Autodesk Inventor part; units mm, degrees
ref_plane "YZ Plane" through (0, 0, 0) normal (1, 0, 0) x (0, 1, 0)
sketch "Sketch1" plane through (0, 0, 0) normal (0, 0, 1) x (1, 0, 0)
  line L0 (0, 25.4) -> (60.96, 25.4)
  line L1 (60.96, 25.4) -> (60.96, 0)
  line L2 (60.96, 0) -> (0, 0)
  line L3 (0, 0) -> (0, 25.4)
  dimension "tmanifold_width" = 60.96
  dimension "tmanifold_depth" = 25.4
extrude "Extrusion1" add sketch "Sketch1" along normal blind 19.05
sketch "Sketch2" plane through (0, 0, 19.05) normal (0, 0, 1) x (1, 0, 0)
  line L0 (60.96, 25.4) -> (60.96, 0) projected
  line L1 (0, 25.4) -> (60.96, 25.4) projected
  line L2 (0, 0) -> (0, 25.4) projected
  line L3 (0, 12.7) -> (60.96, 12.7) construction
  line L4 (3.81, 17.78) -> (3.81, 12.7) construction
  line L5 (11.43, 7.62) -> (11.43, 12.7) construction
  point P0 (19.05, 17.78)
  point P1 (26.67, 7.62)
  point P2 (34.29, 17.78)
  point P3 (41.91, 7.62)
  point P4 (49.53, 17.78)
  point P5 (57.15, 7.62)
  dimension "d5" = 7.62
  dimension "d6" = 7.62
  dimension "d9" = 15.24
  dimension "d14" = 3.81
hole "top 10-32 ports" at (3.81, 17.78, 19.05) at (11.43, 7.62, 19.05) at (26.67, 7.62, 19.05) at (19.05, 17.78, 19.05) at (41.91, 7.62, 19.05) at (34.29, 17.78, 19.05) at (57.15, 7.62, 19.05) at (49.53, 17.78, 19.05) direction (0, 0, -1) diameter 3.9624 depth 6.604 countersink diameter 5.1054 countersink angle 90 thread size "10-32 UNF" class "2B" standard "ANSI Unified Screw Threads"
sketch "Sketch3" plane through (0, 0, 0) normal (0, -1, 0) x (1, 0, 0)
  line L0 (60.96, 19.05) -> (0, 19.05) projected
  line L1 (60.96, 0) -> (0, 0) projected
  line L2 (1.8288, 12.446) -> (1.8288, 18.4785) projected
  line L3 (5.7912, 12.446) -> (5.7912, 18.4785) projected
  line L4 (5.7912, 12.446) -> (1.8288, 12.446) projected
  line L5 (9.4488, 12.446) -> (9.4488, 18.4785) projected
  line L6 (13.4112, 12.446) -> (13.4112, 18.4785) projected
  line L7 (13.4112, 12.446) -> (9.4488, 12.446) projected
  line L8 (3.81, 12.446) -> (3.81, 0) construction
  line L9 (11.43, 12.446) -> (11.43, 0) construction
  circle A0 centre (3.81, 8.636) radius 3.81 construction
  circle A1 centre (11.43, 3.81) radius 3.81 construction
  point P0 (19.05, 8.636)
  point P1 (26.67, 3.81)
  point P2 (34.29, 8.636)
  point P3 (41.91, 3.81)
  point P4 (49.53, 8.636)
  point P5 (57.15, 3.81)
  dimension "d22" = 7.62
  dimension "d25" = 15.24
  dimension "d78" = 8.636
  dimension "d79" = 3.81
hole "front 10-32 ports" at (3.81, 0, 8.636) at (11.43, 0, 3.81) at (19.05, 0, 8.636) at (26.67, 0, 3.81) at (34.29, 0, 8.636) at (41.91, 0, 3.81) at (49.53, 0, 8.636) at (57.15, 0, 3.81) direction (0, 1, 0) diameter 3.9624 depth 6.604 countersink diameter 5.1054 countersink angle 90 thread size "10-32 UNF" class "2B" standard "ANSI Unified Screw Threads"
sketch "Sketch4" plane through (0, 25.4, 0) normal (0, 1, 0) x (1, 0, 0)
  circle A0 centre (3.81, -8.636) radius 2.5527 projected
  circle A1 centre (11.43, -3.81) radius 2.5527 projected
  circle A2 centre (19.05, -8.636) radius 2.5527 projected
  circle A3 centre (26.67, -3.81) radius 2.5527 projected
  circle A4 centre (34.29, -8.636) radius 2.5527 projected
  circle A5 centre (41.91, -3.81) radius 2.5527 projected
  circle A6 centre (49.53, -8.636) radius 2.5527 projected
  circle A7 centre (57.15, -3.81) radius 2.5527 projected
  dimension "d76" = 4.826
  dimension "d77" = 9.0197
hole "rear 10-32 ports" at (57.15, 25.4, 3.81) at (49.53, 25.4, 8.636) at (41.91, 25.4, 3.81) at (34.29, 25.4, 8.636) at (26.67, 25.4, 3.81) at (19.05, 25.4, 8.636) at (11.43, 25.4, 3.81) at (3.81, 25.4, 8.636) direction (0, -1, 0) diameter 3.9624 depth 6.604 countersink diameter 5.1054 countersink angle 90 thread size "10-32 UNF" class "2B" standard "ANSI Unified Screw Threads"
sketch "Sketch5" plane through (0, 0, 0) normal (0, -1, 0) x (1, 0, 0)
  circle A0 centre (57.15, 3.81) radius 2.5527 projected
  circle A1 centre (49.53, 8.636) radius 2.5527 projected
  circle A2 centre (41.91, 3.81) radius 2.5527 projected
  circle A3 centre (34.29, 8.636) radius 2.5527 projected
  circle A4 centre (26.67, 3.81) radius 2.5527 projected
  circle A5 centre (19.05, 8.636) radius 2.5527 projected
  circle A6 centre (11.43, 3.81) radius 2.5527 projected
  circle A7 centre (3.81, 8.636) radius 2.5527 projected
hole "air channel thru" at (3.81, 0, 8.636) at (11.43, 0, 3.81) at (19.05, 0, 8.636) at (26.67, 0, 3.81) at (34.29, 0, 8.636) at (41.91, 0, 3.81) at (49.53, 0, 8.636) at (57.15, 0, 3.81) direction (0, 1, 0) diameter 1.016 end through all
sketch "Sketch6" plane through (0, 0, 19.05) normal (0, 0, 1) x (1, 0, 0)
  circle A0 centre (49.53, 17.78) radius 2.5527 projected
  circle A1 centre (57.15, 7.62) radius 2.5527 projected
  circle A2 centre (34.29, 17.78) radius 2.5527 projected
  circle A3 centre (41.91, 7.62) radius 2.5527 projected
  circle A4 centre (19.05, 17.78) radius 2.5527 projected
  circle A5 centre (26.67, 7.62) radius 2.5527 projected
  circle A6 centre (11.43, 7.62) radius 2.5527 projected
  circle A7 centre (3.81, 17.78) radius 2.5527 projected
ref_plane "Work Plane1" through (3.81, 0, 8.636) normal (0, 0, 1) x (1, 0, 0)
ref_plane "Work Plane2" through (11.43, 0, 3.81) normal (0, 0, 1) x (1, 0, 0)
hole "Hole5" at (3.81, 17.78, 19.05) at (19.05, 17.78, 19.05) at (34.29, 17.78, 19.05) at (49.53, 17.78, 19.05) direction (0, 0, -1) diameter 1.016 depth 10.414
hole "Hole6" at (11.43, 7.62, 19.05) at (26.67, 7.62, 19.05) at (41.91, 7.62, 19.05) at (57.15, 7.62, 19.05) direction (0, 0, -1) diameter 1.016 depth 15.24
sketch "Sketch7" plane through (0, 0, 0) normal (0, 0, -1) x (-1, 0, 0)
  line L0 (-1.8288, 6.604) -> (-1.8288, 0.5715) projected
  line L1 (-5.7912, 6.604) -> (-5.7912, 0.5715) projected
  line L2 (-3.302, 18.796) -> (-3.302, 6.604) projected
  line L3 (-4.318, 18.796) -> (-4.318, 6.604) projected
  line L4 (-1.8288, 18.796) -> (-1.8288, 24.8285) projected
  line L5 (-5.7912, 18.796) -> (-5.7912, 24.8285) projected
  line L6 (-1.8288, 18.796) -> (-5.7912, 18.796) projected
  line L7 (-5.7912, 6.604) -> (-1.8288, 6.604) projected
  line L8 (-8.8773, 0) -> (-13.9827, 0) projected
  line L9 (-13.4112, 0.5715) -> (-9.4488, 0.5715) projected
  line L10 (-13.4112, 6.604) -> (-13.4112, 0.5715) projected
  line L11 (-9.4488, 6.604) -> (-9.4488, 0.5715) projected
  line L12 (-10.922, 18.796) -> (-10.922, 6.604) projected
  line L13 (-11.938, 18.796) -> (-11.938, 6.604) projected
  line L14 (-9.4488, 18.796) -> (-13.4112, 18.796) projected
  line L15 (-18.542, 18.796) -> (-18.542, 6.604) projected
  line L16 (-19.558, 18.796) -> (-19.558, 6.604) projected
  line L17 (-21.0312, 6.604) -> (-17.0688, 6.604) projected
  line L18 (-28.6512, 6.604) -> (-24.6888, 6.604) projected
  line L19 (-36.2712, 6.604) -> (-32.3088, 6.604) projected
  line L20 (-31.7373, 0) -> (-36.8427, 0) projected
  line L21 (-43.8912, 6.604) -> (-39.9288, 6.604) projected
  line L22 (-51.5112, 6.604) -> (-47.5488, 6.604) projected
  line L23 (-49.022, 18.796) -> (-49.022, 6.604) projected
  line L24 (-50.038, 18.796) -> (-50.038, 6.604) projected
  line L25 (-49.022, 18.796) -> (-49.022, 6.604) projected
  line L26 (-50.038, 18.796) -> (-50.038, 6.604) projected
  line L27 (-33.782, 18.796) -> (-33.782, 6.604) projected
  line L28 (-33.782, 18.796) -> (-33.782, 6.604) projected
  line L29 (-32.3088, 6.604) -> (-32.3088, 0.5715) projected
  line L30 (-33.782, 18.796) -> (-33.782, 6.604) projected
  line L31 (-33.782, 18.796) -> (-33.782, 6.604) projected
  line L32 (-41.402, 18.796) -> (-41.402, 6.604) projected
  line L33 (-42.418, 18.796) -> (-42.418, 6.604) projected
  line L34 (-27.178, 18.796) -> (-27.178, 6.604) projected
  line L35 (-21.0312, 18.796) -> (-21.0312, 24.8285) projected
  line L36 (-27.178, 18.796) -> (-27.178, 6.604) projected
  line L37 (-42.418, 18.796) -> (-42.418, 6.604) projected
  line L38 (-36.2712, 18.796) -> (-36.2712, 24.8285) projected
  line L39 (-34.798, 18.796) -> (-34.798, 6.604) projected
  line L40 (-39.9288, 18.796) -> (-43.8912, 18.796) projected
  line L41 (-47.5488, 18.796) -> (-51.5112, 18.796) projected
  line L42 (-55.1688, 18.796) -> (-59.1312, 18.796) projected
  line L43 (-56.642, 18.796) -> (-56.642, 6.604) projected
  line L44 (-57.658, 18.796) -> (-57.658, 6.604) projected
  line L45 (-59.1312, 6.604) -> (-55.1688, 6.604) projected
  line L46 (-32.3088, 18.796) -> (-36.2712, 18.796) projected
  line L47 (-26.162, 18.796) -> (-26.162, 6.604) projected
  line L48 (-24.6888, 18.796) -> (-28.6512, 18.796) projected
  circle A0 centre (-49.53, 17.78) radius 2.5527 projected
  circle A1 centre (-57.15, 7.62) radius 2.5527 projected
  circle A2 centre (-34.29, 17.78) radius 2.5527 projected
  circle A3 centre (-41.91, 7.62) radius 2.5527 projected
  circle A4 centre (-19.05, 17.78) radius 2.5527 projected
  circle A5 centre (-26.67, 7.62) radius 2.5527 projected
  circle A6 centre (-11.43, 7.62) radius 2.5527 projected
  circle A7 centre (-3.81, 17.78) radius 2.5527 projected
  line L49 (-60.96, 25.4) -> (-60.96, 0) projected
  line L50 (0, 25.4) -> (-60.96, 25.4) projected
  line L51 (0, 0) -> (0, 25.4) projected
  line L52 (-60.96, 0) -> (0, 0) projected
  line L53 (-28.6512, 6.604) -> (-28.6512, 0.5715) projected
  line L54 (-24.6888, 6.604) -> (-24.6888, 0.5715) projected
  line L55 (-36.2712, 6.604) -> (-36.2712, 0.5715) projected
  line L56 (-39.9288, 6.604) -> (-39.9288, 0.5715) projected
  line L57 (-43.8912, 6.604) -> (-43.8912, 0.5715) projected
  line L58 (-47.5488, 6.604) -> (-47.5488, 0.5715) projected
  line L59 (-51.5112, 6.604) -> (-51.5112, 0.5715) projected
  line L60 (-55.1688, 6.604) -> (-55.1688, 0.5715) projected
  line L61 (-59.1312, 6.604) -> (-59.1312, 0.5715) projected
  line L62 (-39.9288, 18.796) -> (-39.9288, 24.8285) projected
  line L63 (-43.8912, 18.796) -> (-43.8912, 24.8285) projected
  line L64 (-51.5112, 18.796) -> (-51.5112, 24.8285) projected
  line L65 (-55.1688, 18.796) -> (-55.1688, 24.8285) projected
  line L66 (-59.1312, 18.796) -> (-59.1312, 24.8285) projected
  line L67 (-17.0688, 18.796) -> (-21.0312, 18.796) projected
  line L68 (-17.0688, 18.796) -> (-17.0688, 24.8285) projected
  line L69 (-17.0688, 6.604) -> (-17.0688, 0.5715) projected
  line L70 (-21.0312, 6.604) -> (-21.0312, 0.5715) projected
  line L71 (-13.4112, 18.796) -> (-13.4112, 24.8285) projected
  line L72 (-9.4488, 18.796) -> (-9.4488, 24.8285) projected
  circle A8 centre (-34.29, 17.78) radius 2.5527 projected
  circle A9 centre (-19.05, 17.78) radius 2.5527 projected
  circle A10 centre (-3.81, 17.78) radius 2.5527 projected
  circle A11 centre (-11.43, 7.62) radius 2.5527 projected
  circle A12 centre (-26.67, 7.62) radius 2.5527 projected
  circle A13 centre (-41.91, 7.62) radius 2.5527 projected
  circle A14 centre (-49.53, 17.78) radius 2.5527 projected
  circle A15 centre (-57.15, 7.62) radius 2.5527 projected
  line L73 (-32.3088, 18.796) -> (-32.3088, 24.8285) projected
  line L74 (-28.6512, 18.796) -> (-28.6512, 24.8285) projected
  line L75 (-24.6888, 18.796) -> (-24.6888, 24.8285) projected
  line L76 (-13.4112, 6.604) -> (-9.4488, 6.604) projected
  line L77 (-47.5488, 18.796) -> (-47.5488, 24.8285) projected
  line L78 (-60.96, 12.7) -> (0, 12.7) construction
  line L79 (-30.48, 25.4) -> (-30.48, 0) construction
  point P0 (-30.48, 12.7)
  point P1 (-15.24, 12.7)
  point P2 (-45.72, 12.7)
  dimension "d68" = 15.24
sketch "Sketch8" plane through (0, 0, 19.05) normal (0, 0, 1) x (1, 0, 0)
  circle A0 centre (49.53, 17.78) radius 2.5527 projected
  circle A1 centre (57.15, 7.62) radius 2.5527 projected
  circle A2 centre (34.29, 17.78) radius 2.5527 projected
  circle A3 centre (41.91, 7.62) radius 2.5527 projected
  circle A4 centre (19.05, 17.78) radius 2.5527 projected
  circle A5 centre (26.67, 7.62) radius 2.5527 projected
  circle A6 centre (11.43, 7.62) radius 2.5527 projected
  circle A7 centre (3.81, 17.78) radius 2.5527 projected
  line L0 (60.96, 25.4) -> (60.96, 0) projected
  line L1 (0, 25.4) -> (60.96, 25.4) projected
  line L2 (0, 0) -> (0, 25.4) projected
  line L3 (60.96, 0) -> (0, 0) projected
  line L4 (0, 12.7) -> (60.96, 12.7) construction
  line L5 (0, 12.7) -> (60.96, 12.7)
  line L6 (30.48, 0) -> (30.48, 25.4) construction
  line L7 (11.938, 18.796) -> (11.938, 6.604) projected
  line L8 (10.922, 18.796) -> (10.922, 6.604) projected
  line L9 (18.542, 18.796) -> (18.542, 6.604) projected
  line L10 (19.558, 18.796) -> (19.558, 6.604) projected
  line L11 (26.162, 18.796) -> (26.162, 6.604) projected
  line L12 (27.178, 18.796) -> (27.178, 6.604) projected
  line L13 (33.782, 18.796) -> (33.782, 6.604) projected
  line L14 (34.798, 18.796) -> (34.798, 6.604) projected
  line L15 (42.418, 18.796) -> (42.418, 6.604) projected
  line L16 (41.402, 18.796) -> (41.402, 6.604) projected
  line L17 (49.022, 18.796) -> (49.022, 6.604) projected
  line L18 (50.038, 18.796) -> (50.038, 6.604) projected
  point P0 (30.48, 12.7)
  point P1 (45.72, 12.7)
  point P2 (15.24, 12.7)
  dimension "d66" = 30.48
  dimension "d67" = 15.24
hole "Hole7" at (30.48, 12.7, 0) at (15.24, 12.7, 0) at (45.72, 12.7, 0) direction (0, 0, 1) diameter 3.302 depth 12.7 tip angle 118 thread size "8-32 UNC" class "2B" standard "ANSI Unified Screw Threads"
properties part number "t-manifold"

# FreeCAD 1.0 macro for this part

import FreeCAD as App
import Part
import Sketcher
Q = App.Units.Quantity

doc = App.newDocument("Part")
params = doc.addObject("Spreadsheet::Sheet", "Params")
for row, (alias, value) in enumerate([
    ("sketch1_height", "1 in"),
    ("sketch1_width", "2.4 in"),
    ("pad1_length", "0.75 in"),
    ("sketch2_diameter", "0.156 in"),
    ("hole_diameter", "0.156 in"),
    ("hole_depth", "0.26 in"),
    ("hole_csink_diameter", "0.201 in"),
    ("sketch3_diameter", "0.156 in"),
    ("hole2_diameter", "0.156 in"),
    ("hole2_depth", "0.26 in"),
    ("hole2_csink_diameter", "0.201 in"),
    ("sketch4_diameter", "0.156 in"),
    ("hole3_diameter", "0.156 in"),
    ("hole3_depth", "0.26 in"),
    ("hole3_csink_diameter", "0.201 in"),
    ("sketch5_diameter", "0.04 in"),
    ("hole4_diameter", "0.04 in"),
    ("sketch6_diameter", "0.04 in"),
    ("hole5_diameter", "0.04 in"),
    ("hole5_depth", "0.41 in"),
    ("sketch7_diameter", "0.04 in"),
    ("hole6_diameter", "0.04 in"),
    ("hole6_depth", "0.6 in"),
    ("sketch8_diameter", "0.13 in"),
    ("hole7_diameter", "0.13 in"),
    ("hole7_depth", "0.5 in"),
], start=1):
    params.set(f"A{row}", alias)
    params.set(f"B{row}", "=" + value)
    params.setAlias(f"B{row}", alias)

body = doc.addObject("PartDesign::Body", "Body")

# Sketch on XY plane
sketch1 = body.newObject("Sketcher::SketchObject", "Sketch")
sketch1.AttachmentSupport = (doc.getObject("XY_Plane"), [""])
sketch1.MapMode = "FlatFace"
sketch1.addGeometry(Part.LineSegment(App.Vector(61, 25, 0), App.Vector(0, 25, 0)), False)
sketch1.addGeometry(Part.LineSegment(App.Vector(0, 25, 0), App.Vector(0, 0, 0)), False)
sketch1.addGeometry(Part.LineSegment(App.Vector(0, 0, 0), App.Vector(61, 0, 0)), False)
sketch1.addGeometry(Part.LineSegment(App.Vector(61, 0, 0), App.Vector(61, 25, 0)), False)
sketch1.addConstraint(Sketcher.Constraint("Coincident", 0, 2, 1, 1))
sketch1.addConstraint(Sketcher.Constraint("Coincident", 1, 2, 2, 1))
sketch1.addConstraint(Sketcher.Constraint("Coincident", 2, 2, 3, 1))
sketch1.addConstraint(Sketcher.Constraint("Coincident", 3, 2, 0, 1))
sketch1.addConstraint(Sketcher.Constraint("Horizontal", 0))
sketch1.addConstraint(Sketcher.Constraint("Vertical", 1))
sketch1.addConstraint(Sketcher.Constraint("Horizontal", 2))
sketch1.addConstraint(Sketcher.Constraint("Vertical", 3))
sketch1.addConstraint(Sketcher.Constraint("Coincident", 1, 2, -1, 1))
sketch1.addConstraint(Sketcher.Constraint("DistanceY", 1, 2, 1, 1, Q("1 in")))
sketch1.addConstraint(Sketcher.Constraint("DistanceX", 0, 2, 0, 1, Q("2.4 in")))
sketch1.setExpression("Constraints[9]", "Params.sketch1_height")
sketch1.setExpression("Constraints[10]", "Params.sketch1_width")
pad1 = body.newObject("PartDesign::Pad", "Pad")
pad1.Profile = sketch1
pad1.setExpression("Length", "Params.pad1_length")

# Sketch on XY plane
sketch2 = body.newObject("Sketcher::SketchObject", "Sketch001")
sketch2.AttachmentSupport = (doc.getObject("XY_Plane"), [""])
sketch2.MapMode = "FlatFace"
sketch2.AttachmentOffset = App.Placement(App.Vector(0, 0, 0.75 * 25.4), App.Rotation())
sketch2.addGeometry(Part.Circle(App.Vector(3.8, 17.8, 0), App.Vector(0, 0, 1), 2), False)
sketch2.addGeometry(Part.Circle(App.Vector(11.4, 7.6, 0), App.Vector(0, 0, 1), 2), False)
sketch2.addGeometry(Part.Circle(App.Vector(26.7, 7.6, 0), App.Vector(0, 0, 1), 2), False)
sketch2.addGeometry(Part.Circle(App.Vector(19.1, 17.8, 0), App.Vector(0, 0, 1), 2), False)
sketch2.addGeometry(Part.Circle(App.Vector(41.9, 7.6, 0), App.Vector(0, 0, 1), 2), False)
sketch2.addGeometry(Part.Circle(App.Vector(34.3, 17.8, 0), App.Vector(0, 0, 1), 2), False)
sketch2.addGeometry(Part.Circle(App.Vector(57.1, 7.6, 0), App.Vector(0, 0, 1), 2), False)
sketch2.addGeometry(Part.Circle(App.Vector(49.5, 17.8, 0), App.Vector(0, 0, 1), 2), False)
sketch2.addConstraint(Sketcher.Constraint("Equal", 0, 1))
sketch2.addConstraint(Sketcher.Constraint("Equal", 1, 2))
sketch2.addConstraint(Sketcher.Constraint("Equal", 2, 3))
sketch2.addConstraint(Sketcher.Constraint("Equal", 3, 4))
sketch2.addConstraint(Sketcher.Constraint("Equal", 4, 5))
sketch2.addConstraint(Sketcher.Constraint("Equal", 5, 6))
sketch2.addConstraint(Sketcher.Constraint("Equal", 6, 7))
sketch2.addConstraint(Sketcher.Constraint("Horizontal", 1, 3, 2, 3))
sketch2.addConstraint(Sketcher.Constraint("Horizontal", 0, 3, 3, 3))
sketch2.addConstraint(Sketcher.Constraint("Horizontal", 2, 3, 4, 3))
sketch2.addConstraint(Sketcher.Constraint("Horizontal", 3, 3, 5, 3))
sketch2.addConstraint(Sketcher.Constraint("Horizontal", 4, 3, 6, 3))
sketch2.addConstraint(Sketcher.Constraint("Horizontal", 5, 3, 7, 3))
sketch2.addConstraint(Sketcher.Constraint("Diameter", 0, Q("0.156 in")))
sketch2.addConstraint(Sketcher.Constraint("DistanceY", -1, 1, 0, 3, Q("0.7 in")))
sketch2.addConstraint(Sketcher.Constraint("DistanceY", -1, 1, 1, 3, Q("0.3 in")))
sketch2.addConstraint(Sketcher.Constraint("DistanceX", 0, 3, 1, 3, Q("0.3 in")))
sketch2.addConstraint(Sketcher.Constraint("DistanceX", 1, 3, 2, 3, Q("0.6 in")))
sketch2.addConstraint(Sketcher.Constraint("DistanceX", 1, 3, 3, 3, Q("0.3 in")))
sketch2.addConstraint(Sketcher.Constraint("DistanceX", 2, 3, 4, 3, Q("0.6 in")))
sketch2.addConstraint(Sketcher.Constraint("DistanceX", 2, 3, 5, 3, Q("0.3 in")))
sketch2.addConstraint(Sketcher.Constraint("DistanceX", 4, 3, 6, 3, Q("0.6 in")))
sketch2.addConstraint(Sketcher.Constraint("DistanceX", 7, 3, 6, 3, Q("0.3 in")))
sketch2.addConstraint(Sketcher.Constraint("DistanceX", -1, 1, 0, 3, Q("0.15 in")))
sketch2.setExpression("Constraints[13]", "Params.sketch2_diameter")
doc.recompute()
hole = body.newObject("PartDesign::Hole", "Hole")
hole.Profile = sketch2
hole.ThreadType = "None"
hole.setExpression("Diameter", "Params.hole_diameter")
hole.DepthType = "Dimension"
hole.setExpression("Depth", "Params.hole_depth")
hole.DrillPoint = "Flat"
hole.HoleCutType = "Countersink"
hole.setExpression("HoleCutDiameter", "Params.hole_csink_diameter")
hole.HoleCutCountersinkAngle = 90

# Sketch on XZ plane
sketch3 = body.newObject("Sketcher::SketchObject", "Sketch002")
sketch3.AttachmentSupport = (doc.getObject("XZ_Plane"), [""])
sketch3.MapMode = "FlatFace"
sketch3.addGeometry(Part.Circle(App.Vector(3.8, 8.6, 0), App.Vector(0, 0, 1), 2), False)
sketch3.addGeometry(Part.Circle(App.Vector(11.4, 3.8, 0), App.Vector(0, 0, 1), 2), False)
sketch3.addGeometry(Part.Circle(App.Vector(19.1, 8.6, 0), App.Vector(0, 0, 1), 2), False)
sketch3.addGeometry(Part.Circle(App.Vector(26.7, 3.8, 0), App.Vector(0, 0, 1), 2), False)
sketch3.addGeometry(Part.Circle(App.Vector(34.3, 8.6, 0), App.Vector(0, 0, 1), 2), False)
sketch3.addGeometry(Part.Circle(App.Vector(41.9, 3.8, 0), App.Vector(0, 0, 1), 2), False)
sketch3.addGeometry(Part.Circle(App.Vector(49.5, 8.6, 0), App.Vector(0, 0, 1), 2), False)
sketch3.addGeometry(Part.Circle(App.Vector(57.1, 3.8, 0), App.Vector(0, 0, 1), 2), False)
sketch3.addConstraint(Sketcher.Constraint("Equal", 0, 1))
sketch3.addConstraint(Sketcher.Constraint("Equal", 1, 2))
sketch3.addConstraint(Sketcher.Constraint("Equal", 2, 3))
sketch3.addConstraint(Sketcher.Constraint("Equal", 3, 4))
sketch3.addConstraint(Sketcher.Constraint("Equal", 4, 5))
sketch3.addConstraint(Sketcher.Constraint("Equal", 5, 6))
sketch3.addConstraint(Sketcher.Constraint("Equal", 6, 7))
sketch3.addConstraint(Sketcher.Constraint("Horizontal", 0, 3, 2, 3))
sketch3.addConstraint(Sketcher.Constraint("Horizontal", 1, 3, 3, 3))
sketch3.addConstraint(Sketcher.Constraint("Horizontal", 2, 3, 4, 3))
sketch3.addConstraint(Sketcher.Constraint("Horizontal", 3, 3, 5, 3))
sketch3.addConstraint(Sketcher.Constraint("Horizontal", 4, 3, 6, 3))
sketch3.addConstraint(Sketcher.Constraint("Horizontal", 5, 3, 7, 3))
sketch3.addConstraint(Sketcher.Constraint("Diameter", 0, Q("0.156 in")))
sketch3.addConstraint(Sketcher.Constraint("DistanceX", 0, 3, 1, 3, Q("0.3 in")))
sketch3.addConstraint(Sketcher.Constraint("DistanceX", 1, 3, 2, 3, Q("0.3 in")))
sketch3.addConstraint(Sketcher.Constraint("DistanceX", 2, 3, 3, 3, Q("0.3 in")))
sketch3.addConstraint(Sketcher.Constraint("DistanceX", 3, 3, 4, 3, Q("0.3 in")))
sketch3.addConstraint(Sketcher.Constraint("DistanceX", 4, 3, 5, 3, Q("0.3 in")))
sketch3.addConstraint(Sketcher.Constraint("DistanceX", 5, 3, 6, 3, Q("0.3 in")))
sketch3.addConstraint(Sketcher.Constraint("DistanceX", 6, 3, 7, 3, Q("0.3 in")))
sketch3.addConstraint(Sketcher.Constraint("DistanceX", -1, 1, 0, 3, Q("0.15 in")))
sketch3.addConstraint(Sketcher.Constraint("DistanceY", -1, 1, 0, 3, Q("0.34 in")))
sketch3.addConstraint(Sketcher.Constraint("DistanceY", -1, 1, 1, 3, Q("0.15 in")))
sketch3.setExpression("Constraints[13]", "Params.sketch3_diameter")
doc.recompute()
hole2 = body.newObject("PartDesign::Hole", "Hole001")
hole2.Profile = sketch3
hole2.ThreadType = "None"
hole2.setExpression("Diameter", "Params.hole2_diameter")
hole2.DepthType = "Dimension"
hole2.setExpression("Depth", "Params.hole2_depth")
hole2.DrillPoint = "Flat"
hole2.HoleCutType = "Countersink"
hole2.setExpression("HoleCutDiameter", "Params.hole2_csink_diameter")
hole2.HoleCutCountersinkAngle = 90

# Sketch on XZ plane
sketch4 = body.newObject("Sketcher::SketchObject", "Sketch003")
sketch4.AttachmentSupport = (doc.getObject("XZ_Plane"), [""])
sketch4.MapMode = "FlatFace"
sketch4.AttachmentOffset = App.Placement(App.Vector(0, 0, -1 * 25.4), App.Rotation())
sketch4.addGeometry(Part.Circle(App.Vector(57.1, 3.8, 0), App.Vector(0, 0, 1), 2), False)
sketch4.addGeometry(Part.Circle(App.Vector(49.5, 8.6, 0), App.Vector(0, 0, 1), 2), False)
sketch4.addGeometry(Part.Circle(App.Vector(41.9, 3.8, 0), App.Vector(0, 0, 1), 2), False)
sketch4.addGeometry(Part.Circle(App.Vector(34.3, 8.6, 0), App.Vector(0, 0, 1), 2), False)
sketch4.addGeometry(Part.Circle(App.Vector(26.7, 3.8, 0), App.Vector(0, 0, 1), 2), False)
sketch4.addGeometry(Part.Circle(App.Vector(19.1, 8.6, 0), App.Vector(0, 0, 1), 2), False)
sketch4.addGeometry(Part.Circle(App.Vector(11.4, 3.8, 0), App.Vector(0, 0, 1), 2), False)
sketch4.addGeometry(Part.Circle(App.Vector(3.8, 8.6, 0), App.Vector(0, 0, 1), 2), False)
sketch4.addConstraint(Sketcher.Constraint("Equal", 0, 1))
sketch4.addConstraint(Sketcher.Constraint("Equal", 1, 2))
sketch4.addConstraint(Sketcher.Constraint("Equal", 2, 3))
sketch4.addConstraint(Sketcher.Constraint("Equal", 3, 4))
sketch4.addConstraint(Sketcher.Constraint("Equal", 4, 5))
sketch4.addConstraint(Sketcher.Constraint("Equal", 5, 6))
sketch4.addConstraint(Sketcher.Constraint("Equal", 6, 7))
sketch4.addConstraint(Sketcher.Constraint("Horizontal", 0, 3, 2, 3))
sketch4.addConstraint(Sketcher.Constraint("Horizontal", 1, 3, 3, 3))
sketch4.addConstraint(Sketcher.Constraint("Horizontal", 2, 3, 4, 3))
sketch4.addConstraint(Sketcher.Constraint("Horizontal", 3, 3, 5, 3))
sketch4.addConstraint(Sketcher.Constraint("Horizontal", 4, 3, 6, 3))
sketch4.addConstraint(Sketcher.Constraint("Horizontal", 5, 3, 7, 3))
sketch4.addConstraint(Sketcher.Constraint("Diameter", 0, Q("0.156 in")))
sketch4.addConstraint(Sketcher.Constraint("DistanceX", 1, 3, 0, 3, Q("0.3 in")))
sketch4.addConstraint(Sketcher.Constraint("DistanceX", 2, 3, 1, 3, Q("0.3 in")))
sketch4.addConstraint(Sketcher.Constraint("DistanceX", 3, 3, 2, 3, Q("0.3 in")))
sketch4.addConstraint(Sketcher.Constraint("DistanceX", 4, 3, 3, 3, Q("0.3 in")))
sketch4.addConstraint(Sketcher.Constraint("DistanceX", 5, 3, 4, 3, Q("0.3 in")))
sketch4.addConstraint(Sketcher.Constraint("DistanceX", 6, 3, 5, 3, Q("0.3 in")))
sketch4.addConstraint(Sketcher.Constraint("DistanceX", 7, 3, 6, 3, Q("0.3 in")))
sketch4.addConstraint(Sketcher.Constraint("DistanceX", -1, 1, 0, 3, Q("2.25 in")))
sketch4.addConstraint(Sketcher.Constraint("DistanceY", -1, 1, 0, 3, Q("0.15 in")))
sketch4.addConstraint(Sketcher.Constraint("DistanceY", -1, 1, 1, 3, Q("0.34 in")))
sketch4.setExpression("Constraints[13]", "Params.sketch4_diameter")
doc.recompute()
hole3 = body.newObject("PartDesign::Hole", "Hole002")
hole3.Profile = sketch4
hole3.ThreadType = "None"
hole3.setExpression("Diameter", "Params.hole3_diameter")
hole3.DepthType = "Dimension"
hole3.setExpression("Depth", "Params.hole3_depth")
hole3.DrillPoint = "Flat"
hole3.HoleCutType = "Countersink"
hole3.setExpression("HoleCutDiameter", "Params.hole3_csink_diameter")
hole3.HoleCutCountersinkAngle = 90
hole3.Reversed = True

# Sketch on XZ plane
sketch5 = body.newObject("Sketcher::SketchObject", "Sketch004")
sketch5.AttachmentSupport = (doc.getObject("XZ_Plane"), [""])
sketch5.MapMode = "FlatFace"
sketch5.addGeometry(Part.Circle(App.Vector(3.8, 8.6, 0), App.Vector(0, 0, 1), 0.5), False)
sketch5.addGeometry(Part.Circle(App.Vector(11.4, 3.8, 0), App.Vector(0, 0, 1), 0.5), False)
sketch5.addGeometry(Part.Circle(App.Vector(19.1, 8.6, 0), App.Vector(0, 0, 1), 0.5), False)
sketch5.addGeometry(Part.Circle(App.Vector(26.7, 3.8, 0), App.Vector(0, 0, 1), 0.5), False)
sketch5.addGeometry(Part.Circle(App.Vector(34.3, 8.6, 0), App.Vector(0, 0, 1), 0.5), False)
sketch5.addGeometry(Part.Circle(App.Vector(41.9, 3.8, 0), App.Vector(0, 0, 1), 0.5), False)
sketch5.addGeometry(Part.Circle(App.Vector(49.5, 8.6, 0), App.Vector(0, 0, 1), 0.5), False)
sketch5.addGeometry(Part.Circle(App.Vector(57.1, 3.8, 0), App.Vector(0, 0, 1), 0.5), False)
sketch5.addConstraint(Sketcher.Constraint("Equal", 0, 1))
sketch5.addConstraint(Sketcher.Constraint("Equal", 1, 2))
sketch5.addConstraint(Sketcher.Constraint("Equal", 2, 3))
sketch5.addConstraint(Sketcher.Constraint("Equal", 3, 4))
sketch5.addConstraint(Sketcher.Constraint("Equal", 4, 5))
sketch5.addConstraint(Sketcher.Constraint("Equal", 5, 6))
sketch5.addConstraint(Sketcher.Constraint("Equal", 6, 7))
sketch5.addConstraint(Sketcher.Constraint("Horizontal", 0, 3, 2, 3))
sketch5.addConstraint(Sketcher.Constraint("Horizontal", 1, 3, 3, 3))
sketch5.addConstraint(Sketcher.Constraint("Horizontal", 2, 3, 4, 3))
sketch5.addConstraint(Sketcher.Constraint("Horizontal", 3, 3, 5, 3))
sketch5.addConstraint(Sketcher.Constraint("Horizontal", 4, 3, 6, 3))
sketch5.addConstraint(Sketcher.Constraint("Horizontal", 5, 3, 7, 3))
sketch5.addConstraint(Sketcher.Constraint("Diameter", 0, Q("0.04 in")))
sketch5.addConstraint(Sketcher.Constraint("DistanceX", 0, 3, 1, 3, Q("0.3 in")))
sketch5.addConstraint(Sketcher.Constraint("DistanceX", 1, 3, 2, 3, Q("0.3 in")))
sketch5.addConstraint(Sketcher.Constraint("DistanceX", 2, 3, 3, 3, Q("0.3 in")))
sketch5.addConstraint(Sketcher.Constraint("DistanceX", 3, 3, 4, 3, Q("0.3 in")))
sketch5.addConstraint(Sketcher.Constraint("DistanceX", 4, 3, 5, 3, Q("0.3 in")))
sketch5.addConstraint(Sketcher.Constraint("DistanceX", 5, 3, 6, 3, Q("0.3 in")))
sketch5.addConstraint(Sketcher.Constraint("DistanceX", 6, 3, 7, 3, Q("0.3 in")))
sketch5.addConstraint(Sketcher.Constraint("DistanceX", -1, 1, 0, 3, Q("0.15 in")))
sketch5.addConstraint(Sketcher.Constraint("DistanceY", -1, 1, 0, 3, Q("0.34 in")))
sketch5.addConstraint(Sketcher.Constraint("DistanceY", -1, 1, 1, 3, Q("0.15 in")))
sketch5.setExpression("Constraints[13]", "Params.sketch5_diameter")
doc.recompute()
hole4 = body.newObject("PartDesign::Hole", "Hole003")
hole4.Profile = sketch5
hole4.ThreadType = "None"
hole4.setExpression("Diameter", "Params.hole4_diameter")
hole4.DepthType = "ThroughAll"

# Sketch on XY plane
sketch6 = body.newObject("Sketcher::SketchObject", "Sketch005")
sketch6.AttachmentSupport = (doc.getObject("XY_Plane"), [""])
sketch6.MapMode = "FlatFace"
sketch6.AttachmentOffset = App.Placement(App.Vector(0, 0, 0.75 * 25.4), App.Rotation())
sketch6.addGeometry(Part.Circle(App.Vector(3.8, 17.8, 0), App.Vector(0, 0, 1), 0.5), False)
sketch6.addGeometry(Part.Circle(App.Vector(19.1, 17.8, 0), App.Vector(0, 0, 1), 0.5), False)
sketch6.addGeometry(Part.Circle(App.Vector(34.3, 17.8, 0), App.Vector(0, 0, 1), 0.5), False)
sketch6.addGeometry(Part.Circle(App.Vector(49.5, 17.8, 0), App.Vector(0, 0, 1), 0.5), False)
sketch6.addConstraint(Sketcher.Constraint("Equal", 0, 1))
sketch6.addConstraint(Sketcher.Constraint("Equal", 1, 2))
sketch6.addConstraint(Sketcher.Constraint("Equal", 2, 3))
sketch6.addConstraint(Sketcher.Constraint("Horizontal", 0, 3, 1, 3))
sketch6.addConstraint(Sketcher.Constraint("Horizontal", 1, 3, 2, 3))
sketch6.addConstraint(Sketcher.Constraint("Horizontal", 2, 3, 3, 3))
sketch6.addConstraint(Sketcher.Constraint("Diameter", 0, Q("0.04 in")))
sketch6.addConstraint(Sketcher.Constraint("DistanceY", -1, 1, 0, 3, Q("0.7 in")))
sketch6.addConstraint(Sketcher.Constraint("DistanceX", 0, 3, 1, 3, Q("0.6 in")))
sketch6.addConstraint(Sketcher.Constraint("DistanceX", 1, 3, 2, 3, Q("0.6 in")))
sketch6.addConstraint(Sketcher.Constraint("DistanceX", 2, 3, 3, 3, Q("0.6 in")))
sketch6.addConstraint(Sketcher.Constraint("DistanceX", -1, 1, 0, 3, Q("0.15 in")))
sketch6.setExpression("Constraints[6]", "Params.sketch6_diameter")
doc.recompute()
hole5 = body.newObject("PartDesign::Hole", "Hole004")
hole5.Profile = sketch6
hole5.ThreadType = "None"
hole5.setExpression("Diameter", "Params.hole5_diameter")
hole5.DepthType = "Dimension"
hole5.setExpression("Depth", "Params.hole5_depth")
hole5.DrillPoint = "Flat"

# Sketch on XY plane
sketch7 = body.newObject("Sketcher::SketchObject", "Sketch006")
sketch7.AttachmentSupport = (doc.getObject("XY_Plane"), [""])
sketch7.MapMode = "FlatFace"
sketch7.AttachmentOffset = App.Placement(App.Vector(0, 0, 0.75 * 25.4), App.Rotation())
sketch7.addGeometry(Part.Circle(App.Vector(11.4, 7.6, 0), App.Vector(0, 0, 1), 0.5), False)
sketch7.addGeometry(Part.Circle(App.Vector(26.7, 7.6, 0), App.Vector(0, 0, 1), 0.5), False)
sketch7.addGeometry(Part.Circle(App.Vector(41.9, 7.6, 0), App.Vector(0, 0, 1), 0.5), False)
sketch7.addGeometry(Part.Circle(App.Vector(57.1, 7.6, 0), App.Vector(0, 0, 1), 0.5), False)
sketch7.addConstraint(Sketcher.Constraint("Equal", 0, 1))
sketch7.addConstraint(Sketcher.Constraint("Equal", 1, 2))
sketch7.addConstraint(Sketcher.Constraint("Equal", 2, 3))
sketch7.addConstraint(Sketcher.Constraint("Horizontal", 0, 3, 1, 3))
sketch7.addConstraint(Sketcher.Constraint("Horizontal", 1, 3, 2, 3))
sketch7.addConstraint(Sketcher.Constraint("Horizontal", 2, 3, 3, 3))
sketch7.addConstraint(Sketcher.Constraint("Diameter", 0, Q("0.04 in")))
sketch7.addConstraint(Sketcher.Constraint("DistanceY", -1, 1, 0, 3, Q("0.3 in")))
sketch7.addConstraint(Sketcher.Constraint("DistanceX", 0, 3, 1, 3, Q("0.6 in")))
sketch7.addConstraint(Sketcher.Constraint("DistanceX", 1, 3, 2, 3, Q("0.6 in")))
sketch7.addConstraint(Sketcher.Constraint("DistanceX", 2, 3, 3, 3, Q("0.6 in")))
sketch7.addConstraint(Sketcher.Constraint("DistanceX", -1, 1, 0, 3, Q("0.45 in")))
sketch7.setExpression("Constraints[6]", "Params.sketch7_diameter")
doc.recompute()
hole6 = body.newObject("PartDesign::Hole", "Hole005")
hole6.Profile = sketch7
hole6.ThreadType = "None"
hole6.setExpression("Diameter", "Params.hole6_diameter")
hole6.DepthType = "Dimension"
hole6.setExpression("Depth", "Params.hole6_depth")
hole6.DrillPoint = "Flat"

# Sketch on XY plane
sketch8 = body.newObject("Sketcher::SketchObject", "Sketch007")
sketch8.AttachmentSupport = (doc.getObject("XY_Plane"), [""])
sketch8.MapMode = "FlatFace"
sketch8.addGeometry(Part.Circle(App.Vector(30.5, 12.7, 0), App.Vector(0, 0, 1), 1.7), False)
sketch8.addGeometry(Part.Circle(App.Vector(15.2, 12.7, 0), App.Vector(0, 0, 1), 1.7), False)
sketch8.addGeometry(Part.Circle(App.Vector(45.7, 12.7, 0), App.Vector(0, 0, 1), 1.7), False)
sketch8.addConstraint(Sketcher.Constraint("Equal", 0, 1))
sketch8.addConstraint(Sketcher.Constraint("Equal", 1, 2))
sketch8.addConstraint(Sketcher.Constraint("Horizontal", 0, 3, 1, 3))
sketch8.addConstraint(Sketcher.Constraint("Horizontal", 1, 3, 2, 3))
sketch8.addConstraint(Sketcher.Constraint("Diameter", 0, Q("0.13 in")))
sketch8.addConstraint(Sketcher.Constraint("DistanceX", -1, 1, 0, 3, Q("1.2 in")))
sketch8.addConstraint(Sketcher.Constraint("DistanceY", -1, 1, 0, 3, Q("0.5 in")))
sketch8.addConstraint(Sketcher.Constraint("DistanceX", -1, 1, 1, 3, Q("0.6 in")))
sketch8.addConstraint(Sketcher.Constraint("DistanceX", -1, 1, 2, 3, Q("1.8 in")))
sketch8.setExpression("Constraints[4]", "Params.sketch8_diameter")
doc.recompute()
hole7 = body.newObject("PartDesign::Hole", "Hole006")
hole7.Profile = sketch8
hole7.ThreadType = "None"
hole7.setExpression("Diameter", "Params.hole7_diameter")
hole7.DepthType = "Dimension"
hole7.setExpression("Depth", "Params.hole7_depth")
hole7.DrillPoint = "Angled"
hole7.DrillPointAngle = 118
hole7.Reversed = True

doc.recompute()
